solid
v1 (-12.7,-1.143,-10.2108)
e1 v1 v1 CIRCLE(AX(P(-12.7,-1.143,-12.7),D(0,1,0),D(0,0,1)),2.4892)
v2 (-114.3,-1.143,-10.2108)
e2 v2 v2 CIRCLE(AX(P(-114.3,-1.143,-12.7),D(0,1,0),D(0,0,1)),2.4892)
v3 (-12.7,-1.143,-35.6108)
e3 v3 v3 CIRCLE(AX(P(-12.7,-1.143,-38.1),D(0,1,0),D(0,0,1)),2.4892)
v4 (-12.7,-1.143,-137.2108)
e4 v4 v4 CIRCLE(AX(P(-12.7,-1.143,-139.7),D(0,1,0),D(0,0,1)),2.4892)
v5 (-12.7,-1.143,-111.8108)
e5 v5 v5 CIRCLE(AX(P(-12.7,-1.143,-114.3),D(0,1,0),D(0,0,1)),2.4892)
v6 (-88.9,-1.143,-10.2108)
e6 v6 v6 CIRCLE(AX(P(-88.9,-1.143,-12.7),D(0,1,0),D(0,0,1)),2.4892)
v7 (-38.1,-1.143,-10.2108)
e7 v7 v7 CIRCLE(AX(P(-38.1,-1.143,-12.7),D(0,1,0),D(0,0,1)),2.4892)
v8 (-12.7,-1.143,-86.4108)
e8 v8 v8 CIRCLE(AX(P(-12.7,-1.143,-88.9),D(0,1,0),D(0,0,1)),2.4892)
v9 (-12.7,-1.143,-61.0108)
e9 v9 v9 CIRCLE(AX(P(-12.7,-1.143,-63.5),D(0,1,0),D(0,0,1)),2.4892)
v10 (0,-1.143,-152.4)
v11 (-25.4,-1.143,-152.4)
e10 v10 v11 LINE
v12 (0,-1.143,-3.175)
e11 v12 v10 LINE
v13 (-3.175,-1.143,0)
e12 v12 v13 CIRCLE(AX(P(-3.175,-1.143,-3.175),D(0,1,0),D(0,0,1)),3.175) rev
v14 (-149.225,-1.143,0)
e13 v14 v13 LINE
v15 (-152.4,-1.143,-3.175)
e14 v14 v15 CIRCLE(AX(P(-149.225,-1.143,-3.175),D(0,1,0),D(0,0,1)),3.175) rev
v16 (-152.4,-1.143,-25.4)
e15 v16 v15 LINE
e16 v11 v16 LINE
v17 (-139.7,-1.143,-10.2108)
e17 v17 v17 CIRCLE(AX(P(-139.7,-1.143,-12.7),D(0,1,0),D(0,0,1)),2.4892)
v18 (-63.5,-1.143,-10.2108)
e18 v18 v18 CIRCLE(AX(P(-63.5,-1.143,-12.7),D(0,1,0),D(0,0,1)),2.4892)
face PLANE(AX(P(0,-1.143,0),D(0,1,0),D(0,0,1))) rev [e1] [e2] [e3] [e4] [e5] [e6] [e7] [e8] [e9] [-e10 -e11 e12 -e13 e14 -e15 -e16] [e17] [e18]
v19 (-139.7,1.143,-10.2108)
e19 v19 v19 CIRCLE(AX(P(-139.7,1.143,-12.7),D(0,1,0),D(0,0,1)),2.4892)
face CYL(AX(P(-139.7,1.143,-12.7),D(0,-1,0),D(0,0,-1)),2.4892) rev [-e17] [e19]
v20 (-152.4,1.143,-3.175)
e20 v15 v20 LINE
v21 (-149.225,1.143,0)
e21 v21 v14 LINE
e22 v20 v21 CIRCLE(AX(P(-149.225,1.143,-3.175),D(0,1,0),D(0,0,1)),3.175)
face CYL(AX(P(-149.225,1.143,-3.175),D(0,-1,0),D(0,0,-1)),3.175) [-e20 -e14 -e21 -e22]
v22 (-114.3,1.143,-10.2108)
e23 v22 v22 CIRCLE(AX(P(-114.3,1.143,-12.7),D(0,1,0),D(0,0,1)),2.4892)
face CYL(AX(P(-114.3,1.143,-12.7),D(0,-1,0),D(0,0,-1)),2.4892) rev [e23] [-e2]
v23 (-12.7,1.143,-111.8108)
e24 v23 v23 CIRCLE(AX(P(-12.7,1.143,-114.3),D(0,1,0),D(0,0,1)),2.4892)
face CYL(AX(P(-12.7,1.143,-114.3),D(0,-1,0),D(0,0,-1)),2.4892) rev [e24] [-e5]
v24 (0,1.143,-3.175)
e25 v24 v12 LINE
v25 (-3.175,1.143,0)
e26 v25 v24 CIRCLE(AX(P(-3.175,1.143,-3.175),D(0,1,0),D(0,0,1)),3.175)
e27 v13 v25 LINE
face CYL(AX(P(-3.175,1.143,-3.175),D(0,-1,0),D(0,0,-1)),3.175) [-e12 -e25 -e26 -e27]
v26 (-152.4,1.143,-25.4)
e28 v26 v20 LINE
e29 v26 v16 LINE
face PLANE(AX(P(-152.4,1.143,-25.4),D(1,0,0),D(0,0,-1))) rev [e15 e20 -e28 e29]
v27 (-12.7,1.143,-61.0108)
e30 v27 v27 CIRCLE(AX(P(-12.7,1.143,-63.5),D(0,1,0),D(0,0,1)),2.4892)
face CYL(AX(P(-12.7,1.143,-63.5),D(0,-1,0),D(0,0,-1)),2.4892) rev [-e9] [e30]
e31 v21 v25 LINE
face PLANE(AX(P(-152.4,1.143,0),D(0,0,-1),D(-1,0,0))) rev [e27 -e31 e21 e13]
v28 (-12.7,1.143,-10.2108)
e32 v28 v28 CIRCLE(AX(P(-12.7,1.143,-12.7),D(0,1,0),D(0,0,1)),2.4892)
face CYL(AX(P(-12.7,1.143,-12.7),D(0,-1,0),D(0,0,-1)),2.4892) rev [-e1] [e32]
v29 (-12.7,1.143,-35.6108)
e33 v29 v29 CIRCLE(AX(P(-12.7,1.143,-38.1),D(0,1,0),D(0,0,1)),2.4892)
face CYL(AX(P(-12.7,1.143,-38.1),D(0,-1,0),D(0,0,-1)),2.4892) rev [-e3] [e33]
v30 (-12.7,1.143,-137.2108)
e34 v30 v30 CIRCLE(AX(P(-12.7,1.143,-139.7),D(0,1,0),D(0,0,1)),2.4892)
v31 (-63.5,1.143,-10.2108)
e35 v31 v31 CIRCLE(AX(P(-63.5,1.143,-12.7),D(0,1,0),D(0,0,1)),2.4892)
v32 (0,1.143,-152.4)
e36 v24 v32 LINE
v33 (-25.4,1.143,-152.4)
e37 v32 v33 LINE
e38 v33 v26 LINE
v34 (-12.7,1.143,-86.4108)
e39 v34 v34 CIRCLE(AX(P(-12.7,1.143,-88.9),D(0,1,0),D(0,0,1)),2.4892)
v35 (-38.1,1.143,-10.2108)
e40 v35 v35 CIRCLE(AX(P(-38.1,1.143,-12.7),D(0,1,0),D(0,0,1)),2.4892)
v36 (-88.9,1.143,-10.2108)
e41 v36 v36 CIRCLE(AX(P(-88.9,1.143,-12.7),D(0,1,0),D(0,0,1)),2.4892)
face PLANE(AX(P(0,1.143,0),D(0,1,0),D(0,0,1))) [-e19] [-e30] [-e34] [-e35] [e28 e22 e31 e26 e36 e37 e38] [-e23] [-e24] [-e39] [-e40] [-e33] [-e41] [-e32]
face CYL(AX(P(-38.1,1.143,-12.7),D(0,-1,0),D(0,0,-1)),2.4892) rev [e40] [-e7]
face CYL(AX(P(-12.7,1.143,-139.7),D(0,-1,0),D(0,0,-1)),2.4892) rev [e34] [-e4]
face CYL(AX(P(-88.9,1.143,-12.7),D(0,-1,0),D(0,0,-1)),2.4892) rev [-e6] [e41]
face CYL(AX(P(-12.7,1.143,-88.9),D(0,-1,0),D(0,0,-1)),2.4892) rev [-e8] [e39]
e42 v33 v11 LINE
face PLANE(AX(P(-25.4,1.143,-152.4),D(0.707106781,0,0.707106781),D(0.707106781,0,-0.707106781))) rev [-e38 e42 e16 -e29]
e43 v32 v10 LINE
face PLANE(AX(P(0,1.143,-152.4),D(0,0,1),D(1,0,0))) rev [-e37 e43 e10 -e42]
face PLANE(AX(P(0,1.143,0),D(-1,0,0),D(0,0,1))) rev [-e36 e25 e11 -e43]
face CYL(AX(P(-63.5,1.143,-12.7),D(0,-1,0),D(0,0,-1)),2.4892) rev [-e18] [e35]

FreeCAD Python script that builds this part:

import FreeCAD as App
import Part
import Sketcher

V = App.Vector
Q = App.Units.Quantity


def edges_at(feature, points):
    """Names of the edges that pass closest to the given points."""
    edges = feature.Shape.Edges
    near = lambda p: min(range(len(edges)), key=lambda i: edges[i].distToShape(Part.Vertex(*p))[0])
    return sorted({f"Edge{near(p) + 1}" for p in points})


def add_polygon(sketch, points):
    """Adds a closed chain of lines whose ends are joined by coincident constraints."""
    first, n = sketch.GeometryCount, len(points)
    for a, b in zip(points, points[1:] + points[:1]):
        sketch.addGeometry(Part.LineSegment(App.Vector(*a, 0), App.Vector(*b, 0)), False)
    for i in range(n):
        sketch.addConstraint(Sketcher.Constraint("Coincident", first + i, 2, first + (i + 1) % n, 1))

doc = App.newDocument("Part")
body = doc.addObject("PartDesign::Body", "Body")

# Sketch on XZ plane
sketch1 = body.newObject("Sketcher::SketchObject", "Sketch")
sketch1.AttachmentSupport = (doc.getObject("XZ_Plane"), [""])
sketch1.MapMode = "FlatFace"
add_polygon(sketch1, [(0, 0), (0, -152.4), (-25.4, -152.4), (-152.4, -25.4), (-152.4, 0)])  # lines 0-4
sketch1.addGeometry(Part.Circle(V(-139.7, -12.7, 0), V(0, 0, 1), 2.5), False)  # 5
sketch1.addGeometry(Part.Circle(V(-114.3, -12.7, 0), V(0, 0, 1), 2.5), False)  # 6
sketch1.addGeometry(Part.Circle(V(-88.9, -12.7, 0), V(0, 0, 1), 2.5), False)  # 7
sketch1.addGeometry(Part.Circle(V(-63.5, -12.7, 0), V(0, 0, 1), 2.5), False)  # 8
sketch1.addGeometry(Part.Circle(V(-38.1, -12.7, 0), V(0, 0, 1), 2.5), False)  # 9
sketch1.addGeometry(Part.Circle(V(-12.7, -12.7, 0), V(0, 0, 1), 2.5), False)  # 10
sketch1.addGeometry(Part.Circle(V(-12.7, -38.1, 0), V(0, 0, 1), 2.5), False)  # 11
sketch1.addGeometry(Part.Circle(V(-12.7, -63.5, 0), V(0, 0, 1), 2.5), False)  # 12
sketch1.addGeometry(Part.Circle(V(-12.7, -88.9, 0), V(0, 0, 1), 2.5), False)  # 13
sketch1.addGeometry(Part.Circle(V(-12.7, -114.3, 0), V(0, 0, 1), 2.5), False)  # 14
sketch1.addGeometry(Part.Circle(V(-12.7, -139.7, 0), V(0, 0, 1), 2.5), False)  # 15
sketch1.addConstraint([
    Sketcher.Constraint("Vertical", 0),
    Sketcher.Constraint("Horizontal", 1),
    Sketcher.Constraint("Vertical", 3),
    Sketcher.Constraint("Horizontal", 4),
    Sketcher.Constraint("Coincident", 4, 2, -1, 1),
    Sketcher.Constraint("Equal", 5, 6),
    Sketcher.Constraint("Equal", 6, 7),
    Sketcher.Constraint("Equal", 7, 8),
    Sketcher.Constraint("Equal", 8, 9),
    Sketcher.Constraint("Equal", 9, 10),
    Sketcher.Constraint("Equal", 10, 11),
    Sketcher.Constraint("Equal", 11, 12),
    Sketcher.Constraint("Equal", 12, 13),
    Sketcher.Constraint("Equal", 13, 14),
    Sketcher.Constraint("Equal", 14, 15),
    Sketcher.Constraint("Horizontal", 5, 3, 6, 3),
    Sketcher.Constraint("Horizontal", 6, 3, 7, 3),
    Sketcher.Constraint("Horizontal", 7, 3, 8, 3),
    Sketcher.Constraint("Horizontal", 8, 3, 9, 3),
    Sketcher.Constraint("Horizontal", 9, 3, 10, 3),
    Sketcher.Constraint("Vertical", 10, 3, 11, 3),
    Sketcher.Constraint("Vertical", 11, 3, 12, 3),
    Sketcher.Constraint("Vertical", 12, 3, 13, 3),
    Sketcher.Constraint("Vertical", 13, 3, 14, 3),
    Sketcher.Constraint("Vertical", 14, 3, 15, 3),
    Sketcher.Constraint("Equal", 4, 0),
    Sketcher.Constraint("Equal", 1, 3),
    Sketcher.Constraint("DistanceX", 1, 2, 1, 1, Q("1 in")),
    Sketcher.Constraint("DistanceX", 4, 1, 4, 2, Q("6 in")),
    Sketcher.Constraint("Diameter", 5, Q("0.196 in")),
    Sketcher.Constraint("DistanceX", 5, 3, 6, 3, Q("1 in")),
    Sketcher.Constraint("DistanceX", 6, 3, 7, 3, Q("1 in")),
    Sketcher.Constraint("DistanceX", 7, 3, 8, 3, Q("1 in")),
    Sketcher.Constraint("DistanceX", 8, 3, 9, 3, Q("1 in")),
    Sketcher.Constraint("DistanceX", 9, 3, 10, 3, Q("1 in")),
    Sketcher.Constraint("DistanceY", 11, 3, 10, 3, Q("1 in")),
    Sketcher.Constraint("DistanceY", 12, 3, 11, 3, Q("1 in")),
    Sketcher.Constraint("DistanceY", 13, 3, 12, 3, Q("1 in")),
    Sketcher.Constraint("DistanceY", 14, 3, 13, 3, Q("1 in")),
    Sketcher.Constraint("DistanceY", 15, 3, 14, 3, Q("1 in")),
    Sketcher.Constraint("DistanceX", 5, 3, -1, 1, Q("5.5 in")),
    Sketcher.Constraint("DistanceY", 5, 3, -1, 1, Q("0.5 in")),
])
pad1 = body.newObject("PartDesign::Pad", "Pad")
pad1.Profile = sketch1
pad1.Length = Q("0.09 in")
pad1.Midplane = True
doc.recompute()

fillet = body.newObject("PartDesign::Fillet", "Fillet")
fillet.Base = (pad1, edges_at(pad1, [(-152.4, 0, 0), (0, 0, 0)]))
fillet.Radius = Q("0.125 in")

doc.recompute()
